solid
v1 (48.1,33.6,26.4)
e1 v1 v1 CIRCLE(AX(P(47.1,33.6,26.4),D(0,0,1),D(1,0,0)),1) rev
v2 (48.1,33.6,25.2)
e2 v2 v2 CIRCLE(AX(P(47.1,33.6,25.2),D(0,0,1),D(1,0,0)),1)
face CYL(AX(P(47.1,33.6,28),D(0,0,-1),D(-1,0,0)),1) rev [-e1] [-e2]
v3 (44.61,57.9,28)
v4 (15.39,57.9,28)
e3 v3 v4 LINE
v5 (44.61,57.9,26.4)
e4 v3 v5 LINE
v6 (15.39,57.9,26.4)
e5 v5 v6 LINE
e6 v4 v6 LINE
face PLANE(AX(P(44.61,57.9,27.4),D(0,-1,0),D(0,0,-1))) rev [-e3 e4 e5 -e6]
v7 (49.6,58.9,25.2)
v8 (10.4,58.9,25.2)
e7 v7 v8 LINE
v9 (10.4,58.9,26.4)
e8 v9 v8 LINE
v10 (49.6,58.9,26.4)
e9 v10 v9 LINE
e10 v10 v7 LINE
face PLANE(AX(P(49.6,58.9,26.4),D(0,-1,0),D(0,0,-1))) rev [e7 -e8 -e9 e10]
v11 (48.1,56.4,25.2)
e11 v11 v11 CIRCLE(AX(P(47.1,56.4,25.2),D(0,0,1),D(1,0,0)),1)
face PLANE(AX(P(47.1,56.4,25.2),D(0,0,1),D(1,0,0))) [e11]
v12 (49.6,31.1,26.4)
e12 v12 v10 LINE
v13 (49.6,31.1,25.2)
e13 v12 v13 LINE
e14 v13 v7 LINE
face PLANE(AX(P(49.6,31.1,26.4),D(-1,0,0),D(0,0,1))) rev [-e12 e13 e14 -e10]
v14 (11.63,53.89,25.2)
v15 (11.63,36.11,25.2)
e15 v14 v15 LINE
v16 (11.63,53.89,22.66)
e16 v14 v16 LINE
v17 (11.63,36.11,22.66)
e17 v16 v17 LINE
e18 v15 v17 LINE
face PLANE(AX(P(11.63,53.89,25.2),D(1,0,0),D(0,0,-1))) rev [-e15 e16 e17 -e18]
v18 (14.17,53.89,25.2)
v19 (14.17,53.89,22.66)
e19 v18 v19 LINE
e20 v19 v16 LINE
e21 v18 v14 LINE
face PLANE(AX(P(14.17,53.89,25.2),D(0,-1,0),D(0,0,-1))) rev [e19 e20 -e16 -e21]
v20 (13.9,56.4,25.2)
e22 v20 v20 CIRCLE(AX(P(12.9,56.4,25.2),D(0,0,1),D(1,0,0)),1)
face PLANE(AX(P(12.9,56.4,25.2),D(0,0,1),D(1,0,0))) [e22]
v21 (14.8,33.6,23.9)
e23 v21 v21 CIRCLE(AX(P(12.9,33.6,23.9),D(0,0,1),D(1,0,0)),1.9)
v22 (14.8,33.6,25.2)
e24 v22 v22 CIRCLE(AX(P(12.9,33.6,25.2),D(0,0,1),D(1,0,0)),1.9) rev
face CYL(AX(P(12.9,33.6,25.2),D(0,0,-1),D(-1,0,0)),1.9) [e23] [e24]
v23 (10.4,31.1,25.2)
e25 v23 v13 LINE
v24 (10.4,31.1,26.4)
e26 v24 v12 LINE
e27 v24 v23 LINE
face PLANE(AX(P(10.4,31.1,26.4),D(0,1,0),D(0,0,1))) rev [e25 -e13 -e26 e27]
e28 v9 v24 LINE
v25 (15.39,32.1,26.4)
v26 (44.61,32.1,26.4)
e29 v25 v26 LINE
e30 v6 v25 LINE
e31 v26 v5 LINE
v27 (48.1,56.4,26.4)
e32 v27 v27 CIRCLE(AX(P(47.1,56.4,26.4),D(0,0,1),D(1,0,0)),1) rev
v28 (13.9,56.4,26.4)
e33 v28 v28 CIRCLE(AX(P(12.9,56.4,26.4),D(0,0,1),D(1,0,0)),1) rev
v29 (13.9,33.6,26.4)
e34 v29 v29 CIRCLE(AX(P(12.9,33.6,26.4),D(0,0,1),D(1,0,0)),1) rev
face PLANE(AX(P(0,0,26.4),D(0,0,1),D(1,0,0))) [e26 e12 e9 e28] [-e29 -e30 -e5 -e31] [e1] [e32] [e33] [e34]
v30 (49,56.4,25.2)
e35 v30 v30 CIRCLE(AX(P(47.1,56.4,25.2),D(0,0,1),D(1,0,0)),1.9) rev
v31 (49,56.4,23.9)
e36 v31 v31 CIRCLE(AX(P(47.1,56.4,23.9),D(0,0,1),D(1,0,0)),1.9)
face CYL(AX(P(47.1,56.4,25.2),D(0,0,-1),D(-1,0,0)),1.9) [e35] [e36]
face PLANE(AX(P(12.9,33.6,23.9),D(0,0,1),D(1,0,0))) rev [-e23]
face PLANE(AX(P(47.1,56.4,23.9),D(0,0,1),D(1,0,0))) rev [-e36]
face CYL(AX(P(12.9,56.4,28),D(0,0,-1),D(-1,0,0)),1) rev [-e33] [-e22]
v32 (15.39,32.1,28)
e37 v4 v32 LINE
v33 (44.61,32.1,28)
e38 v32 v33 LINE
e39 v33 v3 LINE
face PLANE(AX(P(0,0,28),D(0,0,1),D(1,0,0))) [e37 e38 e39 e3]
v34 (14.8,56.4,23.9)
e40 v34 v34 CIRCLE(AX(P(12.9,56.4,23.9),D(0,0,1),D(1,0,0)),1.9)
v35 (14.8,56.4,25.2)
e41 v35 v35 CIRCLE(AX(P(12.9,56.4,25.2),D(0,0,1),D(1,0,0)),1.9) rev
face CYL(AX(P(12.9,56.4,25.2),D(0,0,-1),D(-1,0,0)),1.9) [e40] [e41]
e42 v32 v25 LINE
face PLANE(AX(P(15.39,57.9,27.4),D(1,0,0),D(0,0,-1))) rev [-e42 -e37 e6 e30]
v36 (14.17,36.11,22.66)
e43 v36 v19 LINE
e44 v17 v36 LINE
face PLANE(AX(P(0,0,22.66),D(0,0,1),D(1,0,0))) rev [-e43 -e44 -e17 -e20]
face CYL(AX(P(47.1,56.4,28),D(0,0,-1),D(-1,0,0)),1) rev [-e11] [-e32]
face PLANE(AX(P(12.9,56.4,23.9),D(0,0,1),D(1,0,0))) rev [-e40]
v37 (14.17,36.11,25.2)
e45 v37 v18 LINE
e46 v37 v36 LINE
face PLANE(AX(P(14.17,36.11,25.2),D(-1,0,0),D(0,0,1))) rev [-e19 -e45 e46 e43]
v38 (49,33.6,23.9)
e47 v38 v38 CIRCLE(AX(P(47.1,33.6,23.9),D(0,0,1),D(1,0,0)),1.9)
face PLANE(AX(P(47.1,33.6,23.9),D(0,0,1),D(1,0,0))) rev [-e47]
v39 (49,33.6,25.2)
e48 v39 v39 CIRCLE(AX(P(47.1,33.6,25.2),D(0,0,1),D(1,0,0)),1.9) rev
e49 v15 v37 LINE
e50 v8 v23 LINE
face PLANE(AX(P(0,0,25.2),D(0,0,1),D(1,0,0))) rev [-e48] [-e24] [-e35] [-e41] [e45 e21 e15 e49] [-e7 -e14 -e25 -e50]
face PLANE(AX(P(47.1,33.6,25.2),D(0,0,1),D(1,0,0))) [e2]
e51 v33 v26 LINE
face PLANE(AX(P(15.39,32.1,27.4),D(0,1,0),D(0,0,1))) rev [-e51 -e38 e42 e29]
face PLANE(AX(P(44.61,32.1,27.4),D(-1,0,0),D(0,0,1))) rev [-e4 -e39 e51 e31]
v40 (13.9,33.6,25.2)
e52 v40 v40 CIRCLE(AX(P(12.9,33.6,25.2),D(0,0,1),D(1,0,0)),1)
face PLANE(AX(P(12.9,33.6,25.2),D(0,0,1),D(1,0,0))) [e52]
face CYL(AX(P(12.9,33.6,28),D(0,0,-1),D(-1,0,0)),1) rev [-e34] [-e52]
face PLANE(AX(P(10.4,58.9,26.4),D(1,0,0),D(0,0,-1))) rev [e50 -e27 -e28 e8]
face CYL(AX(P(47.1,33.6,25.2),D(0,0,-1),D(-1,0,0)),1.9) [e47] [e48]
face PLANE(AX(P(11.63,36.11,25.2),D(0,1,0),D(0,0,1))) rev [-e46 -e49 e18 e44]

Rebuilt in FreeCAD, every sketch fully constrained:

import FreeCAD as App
import Part
import Sketcher
from FreeCAD import Vector


def add_polygon(sketch, points):
    """Adds a closed chain of lines whose ends are joined by coincident constraints."""
    first, n = sketch.GeometryCount, len(points)
    for a, b in zip(points, points[1:] + points[:1]):
        sketch.addGeometry(Part.LineSegment(App.Vector(*a, 0), App.Vector(*b, 0)), False)
    for i in range(n):
        sketch.addConstraint(Sketcher.Constraint("Coincident", first + i, 2, first + (i + 1) % n, 1))

doc = App.newDocument("Part")
params = doc.addObject("Spreadsheet::Sheet", "Params")
for row, (alias, value) in enumerate([
    ("sketch1_width", "39.2 mm"),
    ("sketch1_height", "27.8 mm"),
    ("pad1_length", "1.2 mm"),
    ("sketch2_height", "25.8 mm"),
    ("sketch2_width", "29.22 mm"),
    ("pad2_length", "1 mm"),
    ("sketch3_height", "25.8 mm"),
    ("sketch3_width", "29.22 mm"),
    ("pad3_length", "0.6 mm"),
    ("sketch4_width", "2.54 mm"),
    ("sketch4_height", "17.78 mm"),
    ("pad4_length", "2.54 mm"),
    ("sketch5_diameter", "2 mm"),
    ("sketch6_diameter", "3.8 mm"),
    ("pad5_length", "1.3 mm"),
    ("sketch7_diameter", "3.8 mm"),
    ("pad6_length", "1.3 mm"),
    ("sketch8_diameter", "3.8 mm"),
    ("pad7_length", "1.3 mm"),
    ("sketch9_diameter", "3.8 mm"),
    ("pad8_length", "1.3 mm"),
], start=1):
    params.set(f"A{row}", alias)
    params.set(f"B{row}", "=" + value)
    params.setAlias(f"B{row}", alias)

body = doc.addObject("PartDesign::Body", "Body")

# Sketch on XY plane
sketch1 = body.newObject("Sketcher::SketchObject", "Sketch")
sketch1.AttachmentSupport = (doc.getObject("XY_Plane"), [""])
sketch1.MapMode = "FlatFace"
sketch1.AttachmentOffset = App.Placement(Vector(0, 0, 25.2), App.Rotation())
add_polygon(sketch1, [(10, 59), (10, 31), (50, 31), (50, 59)])  # lines 0-3
sketch1.addConstraint(Sketcher.Constraint("Vertical", 0))
sketch1.addConstraint(Sketcher.Constraint("Horizontal", 1))
sketch1.addConstraint(Sketcher.Constraint("Vertical", 2))
sketch1.addConstraint(Sketcher.Constraint("Horizontal", 3))
sketch1.addConstraint(Sketcher.Constraint("DistanceX", 1, 1, 1, 2, 39.2))
sketch1.addConstraint(Sketcher.Constraint("DistanceY", 0, 2, 0, 1, 27.8))
sketch1.addConstraint(Sketcher.Constraint("DistanceX", -1, 1, 0, 2, 10.4))
sketch1.addConstraint(Sketcher.Constraint("DistanceY", -1, 1, 0, 2, 31.1))
sketch1.setExpression("Constraints[8]", "Params.sketch1_width")
sketch1.setExpression("Constraints[9]", "Params.sketch1_height")
pad1 = body.newObject("PartDesign::Pad", "Pad")
pad1.Profile = sketch1
pad1.setExpression("Length", "Params.pad1_length")

# Sketch on XY plane
sketch2 = body.newObject("Sketcher::SketchObject", "Sketch001")
sketch2.AttachmentSupport = (doc.getObject("XY_Plane"), [""])
sketch2.MapMode = "FlatFace"
sketch2.AttachmentOffset = App.Placement(Vector(0, 0, 26.4), App.Rotation())
add_polygon(sketch2, [(15, 58), (15, 32), (45, 32), (45, 58)])  # lines 0-3
sketch2.addConstraint(Sketcher.Constraint("Vertical", 0))
sketch2.addConstraint(Sketcher.Constraint("Horizontal", 1))
sketch2.addConstraint(Sketcher.Constraint("Vertical", 2))
sketch2.addConstraint(Sketcher.Constraint("Horizontal", 3))
sketch2.addConstraint(Sketcher.Constraint("DistanceY", 0, 2, 0, 1, 25.8))
sketch2.addConstraint(Sketcher.Constraint("DistanceX", 1, 1, 1, 2, 29.22))
sketch2.addConstraint(Sketcher.Constraint("DistanceY", -1, 1, 0, 2, 32.1))
sketch2.addConstraint(Sketcher.Constraint("DistanceX", -1, 1, 0, 2, 15.39))
sketch2.setExpression("Constraints[8]", "Params.sketch2_height")
sketch2.setExpression("Constraints[9]", "Params.sketch2_width")
pad2 = body.newObject("PartDesign::Pad", "Pad001")
pad2.Profile = sketch2
pad2.setExpression("Length", "Params.pad2_length")

# Sketch on XY plane
sketch3 = body.newObject("Sketcher::SketchObject", "Sketch002")
sketch3.AttachmentSupport = (doc.getObject("XY_Plane"), [""])
sketch3.MapMode = "FlatFace"
sketch3.AttachmentOffset = App.Placement(Vector(0, 0, 27.4), App.Rotation())
add_polygon(sketch3, [(15, 58), (15, 32), (45, 32), (45, 58)])  # lines 0-3
sketch3.addConstraint(Sketcher.Constraint("Vertical", 0))
sketch3.addConstraint(Sketcher.Constraint("Horizontal", 1))
sketch3.addConstraint(Sketcher.Constraint("Vertical", 2))
sketch3.addConstraint(Sketcher.Constraint("Horizontal", 3))
sketch3.addConstraint(Sketcher.Constraint("DistanceY", 0, 2, 0, 1, 25.8))
sketch3.addConstraint(Sketcher.Constraint("DistanceX", 1, 1, 1, 2, 29.22))
sketch3.addConstraint(Sketcher.Constraint("DistanceY", -1, 1, 0, 2, 32.1))
sketch3.addConstraint(Sketcher.Constraint("DistanceX", -1, 1, 0, 2, 15.39))
sketch3.setExpression("Constraints[8]", "Params.sketch3_height")
sketch3.setExpression("Constraints[9]", "Params.sketch3_width")
pad3 = body.newObject("PartDesign::Pad", "Pad002")
pad3.Profile = sketch3
pad3.setExpression("Length", "Params.pad3_length")

# Sketch on XY plane
sketch4 = body.newObject("Sketcher::SketchObject", "Sketch003")
sketch4.AttachmentSupport = (doc.getObject("XY_Plane"), [""])
sketch4.MapMode = "FlatFace"
sketch4.AttachmentOffset = App.Placement(Vector(0, 0, 22.66), App.Rotation())
add_polygon(sketch4, [(11.6, 53.9), (11.6, 36.1), (14.2, 36.1), (14.2, 53.9)])  # lines 0-3
sketch4.addConstraint(Sketcher.Constraint("Vertical", 0))
sketch4.addConstraint(Sketcher.Constraint("Horizontal", 1))
sketch4.addConstraint(Sketcher.Constraint("Vertical", 2))
sketch4.addConstraint(Sketcher.Constraint("Horizontal", 3))
sketch4.addConstraint(Sketcher.Constraint("DistanceX", 1, 1, 1, 2, 2.54))
sketch4.addConstraint(Sketcher.Constraint("DistanceY", 0, 2, 0, 1, 17.78))
sketch4.addConstraint(Sketcher.Constraint("DistanceX", -1, 1, 0, 2, 11.63))
sketch4.addConstraint(Sketcher.Constraint("DistanceY", -1, 1, 0, 2, 36.11))
sketch4.setExpression("Constraints[8]", "Params.sketch4_width")
sketch4.setExpression("Constraints[9]", "Params.sketch4_height")
pad4 = body.newObject("PartDesign::Pad", "Pad003")
pad4.Profile = sketch4
pad4.setExpression("Length", "Params.pad4_length")

# Sketch on XY plane
sketch5 = body.newObject("Sketcher::SketchObject", "Sketch004")
sketch5.AttachmentSupport = (doc.getObject("XY_Plane"), [""])
sketch5.MapMode = "FlatFace"
sketch5.addGeometry(Part.Circle(Vector(12.9, 33.6, 0), Vector(0, 0, 1), 1), False)
sketch5.addGeometry(Part.Circle(Vector(12.9, 56.4, 0), Vector(0, 0, 1), 1), False)
sketch5.addGeometry(Part.Circle(Vector(47.1, 33.6, 0), Vector(0, 0, 1), 1), False)
sketch5.addGeometry(Part.Circle(Vector(47.1, 56.4, 0), Vector(0, 0, 1), 1), False)
sketch5.addConstraint(Sketcher.Constraint("Equal", 0, 1))
sketch5.addConstraint(Sketcher.Constraint("Equal", 1, 2))
sketch5.addConstraint(Sketcher.Constraint("Equal", 2, 3))
sketch5.addConstraint(Sketcher.Constraint("Horizontal", 0, 3, 2, 3))
sketch5.addConstraint(Sketcher.Constraint("Horizontal", 1, 3, 3, 3))
sketch5.addConstraint(Sketcher.Constraint("Vertical", 0, 3, 1, 3))
sketch5.addConstraint(Sketcher.Constraint("Vertical", 2, 3, 3, 3))
sketch5.addConstraint(Sketcher.Constraint("Diameter", 0, 2.0))
sketch5.addConstraint(Sketcher.Constraint("DistanceX", -1, 1, 0, 3, 12.9))
sketch5.addConstraint(Sketcher.Constraint("DistanceY", -1, 1, 0, 3, 33.6))
sketch5.addConstraint(Sketcher.Constraint("DistanceY", -1, 1, 1, 3, 56.4))
sketch5.addConstraint(Sketcher.Constraint("DistanceX", -1, 1, 2, 3, 47.1))
sketch5.setExpression("Constraints[7]", "Params.sketch5_diameter")
pocket1 = body.newObject("PartDesign::Pocket", "Pocket")
pocket1.Profile = sketch5
pocket1.Type = "ThroughAll"
pocket1.Reversed = True

# Sketch on XY plane
sketch6 = body.newObject("Sketcher::SketchObject", "Sketch005")
sketch6.AttachmentSupport = (doc.getObject("XY_Plane"), [""])
sketch6.MapMode = "FlatFace"
sketch6.AttachmentOffset = App.Placement(Vector(0, 0, 23.9), App.Rotation())
sketch6.addGeometry(Part.Circle(Vector(12.9, 33.6, 0), Vector(0, 0, 1), 1.9), False)
sketch6.addConstraint(Sketcher.Constraint("Diameter", 0, 3.8))
sketch6.addConstraint(Sketcher.Constraint("DistanceX", -1, 1, 0, 3, 12.9))
sketch6.addConstraint(Sketcher.Constraint("DistanceY", -1, 1, 0, 3, 33.6))
sketch6.setExpression("Constraints[0]", "Params.sketch6_diameter")
pad5 = body.newObject("PartDesign::Pad", "Pad004")
pad5.Profile = sketch6
pad5.setExpression("Length", "Params.pad5_length")

# Sketch on XY plane
sketch7 = body.newObject("Sketcher::SketchObject", "Sketch006")
sketch7.AttachmentSupport = (doc.getObject("XY_Plane"), [""])
sketch7.MapMode = "FlatFace"
sketch7.AttachmentOffset = App.Placement(Vector(0, 0, 23.9), App.Rotation())
sketch7.addGeometry(Part.Circle(Vector(12.9, 56.4, 0), Vector(0, 0, 1), 1.9), False)
sketch7.addConstraint(Sketcher.Constraint("Diameter", 0, 3.8))
sketch7.addConstraint(Sketcher.Constraint("DistanceX", -1, 1, 0, 3, 12.9))
sketch7.addConstraint(Sketcher.Constraint("DistanceY", -1, 1, 0, 3, 56.4))
sketch7.setExpression("Constraints[0]", "Params.sketch7_diameter")
pad6 = body.newObject("PartDesign::Pad", "Pad005")
pad6.Profile = sketch7
pad6.setExpression("Length", "Params.pad6_length")

# Sketch on XY plane
sketch8 = body.newObject("Sketcher::SketchObject", "Sketch007")
sketch8.AttachmentSupport = (doc.getObject("XY_Plane"), [""])
sketch8.MapMode = "FlatFace"
sketch8.AttachmentOffset = App.Placement(Vector(0, 0, 23.9), App.Rotation())
sketch8.addGeometry(Part.Circle(Vector(47.1, 33.6, 0), Vector(0, 0, 1), 1.9), False)
sketch8.addConstraint(Sketcher.Constraint("Diameter", 0, 3.8))
sketch8.addConstraint(Sketcher.Constraint("DistanceX", -1, 1, 0, 3, 47.1))
sketch8.addConstraint(Sketcher.Constraint("DistanceY", -1, 1, 0, 3, 33.6))
sketch8.setExpression("Constraints[0]", "Params.sketch8_diameter")
pad7 = body.newObject("PartDesign::Pad", "Pad006")
pad7.Profile = sketch8
pad7.setExpression("Length", "Params.pad7_length")

# Sketch on XY plane
sketch9 = body.newObject("Sketcher::SketchObject", "Sketch008")
sketch9.AttachmentSupport = (doc.getObject("XY_Plane"), [""])
sketch9.MapMode = "FlatFace"
sketch9.AttachmentOffset = App.Placement(Vector(0, 0, 23.9), App.Rotation())
sketch9.addGeometry(Part.Circle(Vector(47.1, 56.4, 0), Vector(0, 0, 1), 1.9), False)
sketch9.addConstraint(Sketcher.Constraint("Diameter", 0, 3.8))
sketch9.addConstraint(Sketcher.Constraint("DistanceX", -1, 1, 0, 3, 47.1))
sketch9.addConstraint(Sketcher.Constraint("DistanceY", -1, 1, 0, 3, 56.4))
sketch9.setExpression("Constraints[0]", "Params.sketch9_diameter")
pad8 = body.newObject("PartDesign::Pad", "Pad007")
pad8.Profile = sketch9
pad8.setExpression("Length", "Params.pad8_length")

doc.recompute()
